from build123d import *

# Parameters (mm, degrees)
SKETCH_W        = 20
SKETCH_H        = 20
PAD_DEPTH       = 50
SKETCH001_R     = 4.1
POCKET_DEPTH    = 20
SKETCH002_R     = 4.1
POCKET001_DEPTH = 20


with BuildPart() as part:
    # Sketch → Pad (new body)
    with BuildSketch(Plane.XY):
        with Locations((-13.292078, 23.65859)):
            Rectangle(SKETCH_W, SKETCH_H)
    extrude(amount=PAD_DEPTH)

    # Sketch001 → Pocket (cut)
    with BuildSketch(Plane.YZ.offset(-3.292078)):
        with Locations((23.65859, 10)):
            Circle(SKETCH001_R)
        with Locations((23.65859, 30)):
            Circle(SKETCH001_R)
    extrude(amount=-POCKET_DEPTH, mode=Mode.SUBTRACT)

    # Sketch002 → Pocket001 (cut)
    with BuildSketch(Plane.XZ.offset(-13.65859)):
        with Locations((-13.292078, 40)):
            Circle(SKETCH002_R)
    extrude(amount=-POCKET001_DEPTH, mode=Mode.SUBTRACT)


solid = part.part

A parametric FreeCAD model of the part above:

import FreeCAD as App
import Part
import Sketcher
Q = App.Units.Quantity

doc = App.newDocument("Part")
body = doc.addObject("PartDesign::Body", "Body")

sketch1 = doc.addObject("Sketcher::SketchObject", "Sketch")
body.addObject(sketch1)
sketch1.AttachmentSupport = (doc.XY_Plane, [""])
sketch1.MapMode = "FlatFace"
sketch1.addGeometry(Part.LineSegment(App.Vector(-23.292078, 33.65859, 0), App.Vector(-23.292078, 13.65859, 0)), False)
sketch1.addGeometry(Part.LineSegment(App.Vector(-23.292078, 13.65859, 0), App.Vector(-3.292078, 13.65859, 0)), False)
sketch1.addGeometry(Part.LineSegment(App.Vector(-3.292078, 13.65859, 0), App.Vector(-3.292078, 33.65859, 0)), False)
sketch1.addGeometry(Part.LineSegment(App.Vector(-3.292078, 33.65859, 0), App.Vector(-23.292078, 33.65859, 0)), False)
sketch1.addConstraint(Sketcher.Constraint("Coincident", 0, 2, 1, 1))
sketch1.addConstraint(Sketcher.Constraint("Coincident", 1, 2, 2, 1))
sketch1.addConstraint(Sketcher.Constraint("Coincident", 2, 2, 3, 1))
sketch1.addConstraint(Sketcher.Constraint("Coincident", 3, 2, 0, 1))
sketch1.addConstraint(Sketcher.Constraint("Vertical", 0))
sketch1.addConstraint(Sketcher.Constraint("Horizontal", 1))
sketch1.addConstraint(Sketcher.Constraint("Vertical", 2))
sketch1.addConstraint(Sketcher.Constraint("Horizontal", 3))
sketch1.addConstraint(Sketcher.Constraint("Equal", 3, 0))
sketch1.addConstraint(Sketcher.Constraint("DistanceX", 1, 1, 1, 2, Q("20 mm")))
sketch1.addConstraint(Sketcher.Constraint("DistanceX", 0, 2, -1, 1, Q("23.292078 mm")))
sketch1.addConstraint(Sketcher.Constraint("DistanceY", -1, 1, 0, 2, Q("13.65859 mm")))
pad1 = doc.addObject("PartDesign::Pad", "Pad")
body.addObject(pad1)
pad1.Profile = sketch1
pad1.Length = 50

sketch2 = doc.addObject("Sketcher::SketchObject", "Sketch001")
body.addObject(sketch2)
sketch2.AttachmentSupport = (doc.YZ_Plane, [""])
sketch2.MapMode = "FlatFace"
sketch2.AttachmentOffset = App.Placement(App.Vector(0, 0, -3.292078), App.Rotation())
sketch2.addGeometry(Part.Circle(App.Vector(23.65859, 10, 0), App.Vector(0, 0, 1), 4.1), False)
sketch2.addGeometry(Part.Circle(App.Vector(23.65859, 30, 0), App.Vector(0, 0, 1), 4.1), False)
sketch2.addConstraint(Sketcher.Constraint("Equal", 0, 1))
sketch2.addConstraint(Sketcher.Constraint("Vertical", 0, 3, 1, 3))
sketch2.addConstraint(Sketcher.Constraint("Diameter", 0, Q("8.2 mm")))
sketch2.addConstraint(Sketcher.Constraint("DistanceY", -1, 1, 0, 3, Q("10 mm")))
sketch2.addConstraint(Sketcher.Constraint("DistanceY", -1, 1, 1, 3, Q("30 mm")))
sketch2.addConstraint(Sketcher.Constraint("DistanceX", -1, 1, 0, 3, Q("23.65859 mm")))
pocket1 = doc.addObject("PartDesign::Pocket", "Pocket")
body.addObject(pocket1)
pocket1.Profile = sketch2
pocket1.Length = 20

sketch3 = doc.addObject("Sketcher::SketchObject", "Sketch002")
body.addObject(sketch3)
sketch3.AttachmentSupport = (doc.XZ_Plane, [""])
sketch3.MapMode = "FlatFace"
sketch3.AttachmentOffset = App.Placement(App.Vector(0, 0, -13.65859), App.Rotation())
sketch3.addGeometry(Part.Circle(App.Vector(-13.292078, 40, 0), App.Vector(0, 0, 1), 4.1), False)
sketch3.addConstraint(Sketcher.Constraint("Diameter", 0, Q("8.2 mm")))
sketch3.addConstraint(Sketcher.Constraint("DistanceY", -1, 1, 0, 3, Q("40 mm")))
sketch3.addConstraint(Sketcher.Constraint("DistanceX", 0, 3, -1, 1, Q("13.292078 mm")))
pocket2 = doc.addObject("PartDesign::Pocket", "Pocket001")
body.addObject(pocket2)
pocket2.Profile = sketch3
pocket2.Length = 20

doc.recompute()
